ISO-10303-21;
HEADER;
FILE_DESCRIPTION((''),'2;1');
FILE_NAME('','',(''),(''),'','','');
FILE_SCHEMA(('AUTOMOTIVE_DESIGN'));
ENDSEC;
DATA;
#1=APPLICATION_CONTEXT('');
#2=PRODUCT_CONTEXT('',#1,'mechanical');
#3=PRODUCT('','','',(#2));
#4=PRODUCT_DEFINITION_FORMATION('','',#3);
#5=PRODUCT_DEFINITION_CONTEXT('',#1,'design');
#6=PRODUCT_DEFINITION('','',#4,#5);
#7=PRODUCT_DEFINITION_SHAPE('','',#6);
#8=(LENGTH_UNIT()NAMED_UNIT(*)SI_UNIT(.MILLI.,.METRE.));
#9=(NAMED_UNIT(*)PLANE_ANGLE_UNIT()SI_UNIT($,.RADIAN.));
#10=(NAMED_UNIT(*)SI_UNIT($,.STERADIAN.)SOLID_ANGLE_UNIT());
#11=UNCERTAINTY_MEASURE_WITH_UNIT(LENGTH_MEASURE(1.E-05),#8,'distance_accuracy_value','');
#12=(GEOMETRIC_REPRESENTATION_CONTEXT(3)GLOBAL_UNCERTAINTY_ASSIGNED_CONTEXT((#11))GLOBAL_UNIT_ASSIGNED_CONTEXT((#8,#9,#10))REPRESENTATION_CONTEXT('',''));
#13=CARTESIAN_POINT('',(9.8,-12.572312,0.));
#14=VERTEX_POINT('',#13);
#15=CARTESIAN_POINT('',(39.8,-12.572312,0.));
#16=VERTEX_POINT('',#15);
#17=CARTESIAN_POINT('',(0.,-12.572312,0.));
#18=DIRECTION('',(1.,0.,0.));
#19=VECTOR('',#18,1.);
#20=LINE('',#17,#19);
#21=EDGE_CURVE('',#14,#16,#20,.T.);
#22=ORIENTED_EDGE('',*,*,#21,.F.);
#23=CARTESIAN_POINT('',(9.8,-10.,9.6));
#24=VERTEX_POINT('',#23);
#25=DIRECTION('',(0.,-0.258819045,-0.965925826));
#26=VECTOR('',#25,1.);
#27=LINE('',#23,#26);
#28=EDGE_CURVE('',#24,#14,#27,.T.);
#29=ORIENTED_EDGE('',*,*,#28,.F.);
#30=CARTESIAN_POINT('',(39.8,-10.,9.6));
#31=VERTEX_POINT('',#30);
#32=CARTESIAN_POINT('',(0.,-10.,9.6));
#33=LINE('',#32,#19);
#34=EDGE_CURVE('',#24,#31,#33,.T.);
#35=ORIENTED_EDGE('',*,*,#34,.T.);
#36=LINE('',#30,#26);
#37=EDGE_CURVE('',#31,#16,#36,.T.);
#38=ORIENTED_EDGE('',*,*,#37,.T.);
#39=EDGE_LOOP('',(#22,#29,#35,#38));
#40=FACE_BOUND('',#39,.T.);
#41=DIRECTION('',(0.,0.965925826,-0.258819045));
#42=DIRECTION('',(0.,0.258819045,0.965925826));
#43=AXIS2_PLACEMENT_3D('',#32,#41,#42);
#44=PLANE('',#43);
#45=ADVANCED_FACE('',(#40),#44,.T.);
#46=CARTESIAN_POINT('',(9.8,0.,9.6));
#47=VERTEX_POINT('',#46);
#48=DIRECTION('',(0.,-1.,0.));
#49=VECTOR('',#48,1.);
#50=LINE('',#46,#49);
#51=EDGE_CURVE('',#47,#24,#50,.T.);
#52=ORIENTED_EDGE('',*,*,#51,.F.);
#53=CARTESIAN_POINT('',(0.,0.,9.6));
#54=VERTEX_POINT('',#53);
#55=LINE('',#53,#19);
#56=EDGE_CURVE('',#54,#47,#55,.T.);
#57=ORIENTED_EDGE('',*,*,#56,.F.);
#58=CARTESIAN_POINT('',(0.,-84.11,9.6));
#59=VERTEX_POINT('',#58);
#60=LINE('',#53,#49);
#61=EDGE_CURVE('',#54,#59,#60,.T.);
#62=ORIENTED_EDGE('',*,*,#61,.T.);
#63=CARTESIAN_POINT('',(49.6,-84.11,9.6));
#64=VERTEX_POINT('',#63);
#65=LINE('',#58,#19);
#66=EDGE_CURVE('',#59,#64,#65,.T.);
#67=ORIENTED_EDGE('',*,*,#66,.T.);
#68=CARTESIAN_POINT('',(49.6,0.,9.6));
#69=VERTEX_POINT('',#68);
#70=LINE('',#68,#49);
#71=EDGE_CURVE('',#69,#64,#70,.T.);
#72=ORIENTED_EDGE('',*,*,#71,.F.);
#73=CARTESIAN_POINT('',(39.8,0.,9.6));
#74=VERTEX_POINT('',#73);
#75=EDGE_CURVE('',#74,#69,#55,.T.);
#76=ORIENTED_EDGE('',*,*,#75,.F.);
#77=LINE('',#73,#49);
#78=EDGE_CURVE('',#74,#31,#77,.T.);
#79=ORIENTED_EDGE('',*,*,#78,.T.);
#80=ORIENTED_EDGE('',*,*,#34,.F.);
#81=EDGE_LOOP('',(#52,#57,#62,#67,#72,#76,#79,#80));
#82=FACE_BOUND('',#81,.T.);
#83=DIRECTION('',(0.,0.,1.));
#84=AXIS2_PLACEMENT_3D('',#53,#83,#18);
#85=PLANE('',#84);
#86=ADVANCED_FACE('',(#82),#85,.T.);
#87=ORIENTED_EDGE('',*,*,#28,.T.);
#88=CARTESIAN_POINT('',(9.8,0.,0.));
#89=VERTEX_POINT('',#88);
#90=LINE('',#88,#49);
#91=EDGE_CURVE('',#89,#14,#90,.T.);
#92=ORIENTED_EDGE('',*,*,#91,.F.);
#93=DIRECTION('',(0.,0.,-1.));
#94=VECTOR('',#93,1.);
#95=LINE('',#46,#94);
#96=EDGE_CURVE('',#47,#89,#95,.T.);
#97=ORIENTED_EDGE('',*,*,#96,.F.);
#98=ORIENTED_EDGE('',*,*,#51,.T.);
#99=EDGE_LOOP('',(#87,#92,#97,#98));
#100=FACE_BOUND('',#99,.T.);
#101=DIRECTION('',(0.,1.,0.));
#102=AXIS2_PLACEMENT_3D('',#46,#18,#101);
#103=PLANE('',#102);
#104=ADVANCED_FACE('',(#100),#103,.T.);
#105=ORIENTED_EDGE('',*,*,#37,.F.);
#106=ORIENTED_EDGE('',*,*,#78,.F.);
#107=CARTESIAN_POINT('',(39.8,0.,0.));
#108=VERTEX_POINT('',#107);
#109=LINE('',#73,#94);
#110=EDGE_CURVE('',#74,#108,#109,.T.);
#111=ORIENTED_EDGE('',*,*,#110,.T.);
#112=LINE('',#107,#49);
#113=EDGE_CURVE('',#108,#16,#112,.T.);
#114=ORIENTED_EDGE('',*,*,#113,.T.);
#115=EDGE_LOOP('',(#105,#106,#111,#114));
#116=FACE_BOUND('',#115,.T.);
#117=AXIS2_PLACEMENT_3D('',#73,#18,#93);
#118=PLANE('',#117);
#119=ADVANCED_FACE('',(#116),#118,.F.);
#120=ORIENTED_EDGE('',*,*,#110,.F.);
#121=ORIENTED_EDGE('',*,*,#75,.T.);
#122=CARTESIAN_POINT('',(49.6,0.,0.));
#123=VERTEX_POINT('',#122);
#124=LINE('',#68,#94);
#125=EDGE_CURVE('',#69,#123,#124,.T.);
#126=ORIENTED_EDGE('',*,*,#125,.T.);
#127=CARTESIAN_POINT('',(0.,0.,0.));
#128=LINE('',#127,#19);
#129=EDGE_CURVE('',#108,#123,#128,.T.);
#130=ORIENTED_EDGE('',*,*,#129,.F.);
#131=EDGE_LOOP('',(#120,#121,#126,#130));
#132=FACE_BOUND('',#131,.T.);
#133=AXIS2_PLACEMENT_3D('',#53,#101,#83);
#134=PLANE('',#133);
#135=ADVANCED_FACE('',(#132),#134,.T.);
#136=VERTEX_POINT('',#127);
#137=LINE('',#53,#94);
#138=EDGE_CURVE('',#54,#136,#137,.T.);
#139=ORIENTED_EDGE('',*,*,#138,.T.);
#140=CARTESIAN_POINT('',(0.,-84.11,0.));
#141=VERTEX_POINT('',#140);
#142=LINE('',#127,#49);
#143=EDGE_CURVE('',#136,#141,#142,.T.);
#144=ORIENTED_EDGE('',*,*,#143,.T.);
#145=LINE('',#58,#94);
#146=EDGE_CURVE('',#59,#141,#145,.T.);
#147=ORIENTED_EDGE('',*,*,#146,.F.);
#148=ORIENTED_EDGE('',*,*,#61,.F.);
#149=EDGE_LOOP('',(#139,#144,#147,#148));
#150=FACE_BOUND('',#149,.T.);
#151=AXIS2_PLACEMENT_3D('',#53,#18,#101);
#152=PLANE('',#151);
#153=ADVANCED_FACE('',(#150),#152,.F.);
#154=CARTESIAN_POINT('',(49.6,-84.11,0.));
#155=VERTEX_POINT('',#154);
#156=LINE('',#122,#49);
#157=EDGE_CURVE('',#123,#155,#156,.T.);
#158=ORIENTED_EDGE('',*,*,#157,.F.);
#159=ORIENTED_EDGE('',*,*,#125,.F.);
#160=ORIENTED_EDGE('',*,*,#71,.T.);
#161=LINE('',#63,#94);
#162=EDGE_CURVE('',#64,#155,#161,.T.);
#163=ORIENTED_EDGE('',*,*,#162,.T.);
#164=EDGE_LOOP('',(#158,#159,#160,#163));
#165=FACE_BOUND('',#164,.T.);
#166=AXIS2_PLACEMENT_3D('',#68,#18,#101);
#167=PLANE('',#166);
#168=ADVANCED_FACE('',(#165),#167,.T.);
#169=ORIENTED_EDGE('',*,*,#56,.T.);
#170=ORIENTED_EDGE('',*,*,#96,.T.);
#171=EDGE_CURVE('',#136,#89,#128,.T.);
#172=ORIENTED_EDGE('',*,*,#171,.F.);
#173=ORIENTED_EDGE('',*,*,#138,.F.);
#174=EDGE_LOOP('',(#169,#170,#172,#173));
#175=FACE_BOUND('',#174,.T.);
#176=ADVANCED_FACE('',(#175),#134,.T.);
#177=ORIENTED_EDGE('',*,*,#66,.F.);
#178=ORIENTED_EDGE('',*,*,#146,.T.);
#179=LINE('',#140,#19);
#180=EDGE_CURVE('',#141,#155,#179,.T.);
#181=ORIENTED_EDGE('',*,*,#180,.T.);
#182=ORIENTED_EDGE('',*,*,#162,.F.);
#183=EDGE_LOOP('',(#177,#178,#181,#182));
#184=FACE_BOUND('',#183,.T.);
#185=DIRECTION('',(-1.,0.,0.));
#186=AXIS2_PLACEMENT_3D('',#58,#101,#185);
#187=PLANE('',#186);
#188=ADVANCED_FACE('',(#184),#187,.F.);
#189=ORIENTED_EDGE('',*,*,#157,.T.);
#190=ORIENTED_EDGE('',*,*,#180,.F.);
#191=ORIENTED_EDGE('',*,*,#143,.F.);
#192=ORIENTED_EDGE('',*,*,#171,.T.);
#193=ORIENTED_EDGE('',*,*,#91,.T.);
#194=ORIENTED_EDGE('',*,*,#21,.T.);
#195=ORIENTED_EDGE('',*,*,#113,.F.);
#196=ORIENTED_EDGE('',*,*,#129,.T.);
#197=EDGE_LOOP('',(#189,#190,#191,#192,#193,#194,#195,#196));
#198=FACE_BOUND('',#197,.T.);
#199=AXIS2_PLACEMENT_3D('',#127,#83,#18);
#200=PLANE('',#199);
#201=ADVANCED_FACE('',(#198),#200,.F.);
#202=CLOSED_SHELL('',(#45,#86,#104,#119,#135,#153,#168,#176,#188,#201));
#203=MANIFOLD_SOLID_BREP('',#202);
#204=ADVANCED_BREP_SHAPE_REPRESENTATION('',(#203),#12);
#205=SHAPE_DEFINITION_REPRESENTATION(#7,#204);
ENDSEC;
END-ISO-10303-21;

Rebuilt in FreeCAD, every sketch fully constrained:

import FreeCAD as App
import Part
import Sketcher

V = App.Vector
Q = App.Units.Quantity


def faces_at(feature, points):
    """Names of the faces that lie closest to the given points."""
    faces = feature.Shape.Faces
    near = lambda p: min(range(len(faces)), key=lambda i: faces[i].distToShape(Part.Vertex(*p))[0])
    return sorted({f"Face{near(p) + 1}" for p in points})


def add_polygon(sketch, points):
    """Adds a closed chain of lines whose ends are joined by coincident constraints."""
    first, n = sketch.GeometryCount, len(points)
    for a, b in zip(points, points[1:] + points[:1]):
        sketch.addGeometry(Part.LineSegment(App.Vector(*a, 0), App.Vector(*b, 0)), False)
    for i in range(n):
        sketch.addConstraint(Sketcher.Constraint("Coincident", first + i, 2, first + (i + 1) % n, 1))

doc = App.newDocument("Part")
body = doc.addObject("PartDesign::Body", "Body")

sketch1 = doc.addObject("Sketcher::SketchObject", "Sketch")
body.addObject(sketch1)
sketch1.AttachmentSupport = (doc.XY_Plane, [""])
sketch1.MapMode = "FlatFace"
add_polygon(sketch1, [(9.8, 0), (0, 0), (0, -84.11), (49.6, -84.11), (49.6, 0), (39.8, 0), (39.8, -10), (9.8, -10)])
sketch1.addConstraint([
    Sketcher.Constraint("Horizontal", 0),
    Sketcher.Constraint("Vertical", 1),
    Sketcher.Constraint("Horizontal", 2),
    Sketcher.Constraint("Vertical", 3),
    Sketcher.Constraint("Horizontal", 4),
    Sketcher.Constraint("Vertical", 5),
    Sketcher.Constraint("Horizontal", 6),
    Sketcher.Constraint("Vertical", 7),
    Sketcher.Constraint("Coincident", 0, 2, -1, 1),
    Sketcher.Constraint("PointOnObject", 3, 2, -1),
    Sketcher.Constraint("Equal", 0, 4),
    Sketcher.Constraint("DistanceX", 6, 2, 6, 1, Q("30 mm")),
    Sketcher.Constraint("DistanceY", 5, 2, 5, 1, Q("10 mm")),
    Sketcher.Constraint("DistanceX", 0, 2, 0, 1, Q("9.8 mm")),
    Sketcher.Constraint("DistanceY", 1, 2, 1, 1, Q("84.11 mm")),
])
pad1 = doc.addObject("PartDesign::Pad", "Pad")
body.addObject(pad1)
pad1.Profile = sketch1
pad1.Length = 9.6
doc.recompute()

datumplane = doc.addObject("PartDesign::Plane", "DatumPlane")
body.addObject(datumplane)
datumplane.AttachmentSupport = (doc.XY_Plane, [""])
datumplane.MapMode = "FlatFace"
datumplane.AttachmentOffset = App.Placement(V(0, 0, 9.6), App.Rotation())
draft = doc.addObject("PartDesign::Draft", "Draft")
body.addObject(draft)
draft.Base = (pad1, faces_at(pad1, [(24.8, -10, 4.8)]))
draft.NeutralPlane = (datumplane, [""])
draft.Angle = 15
draft.Reversed = True

doc.recompute()
